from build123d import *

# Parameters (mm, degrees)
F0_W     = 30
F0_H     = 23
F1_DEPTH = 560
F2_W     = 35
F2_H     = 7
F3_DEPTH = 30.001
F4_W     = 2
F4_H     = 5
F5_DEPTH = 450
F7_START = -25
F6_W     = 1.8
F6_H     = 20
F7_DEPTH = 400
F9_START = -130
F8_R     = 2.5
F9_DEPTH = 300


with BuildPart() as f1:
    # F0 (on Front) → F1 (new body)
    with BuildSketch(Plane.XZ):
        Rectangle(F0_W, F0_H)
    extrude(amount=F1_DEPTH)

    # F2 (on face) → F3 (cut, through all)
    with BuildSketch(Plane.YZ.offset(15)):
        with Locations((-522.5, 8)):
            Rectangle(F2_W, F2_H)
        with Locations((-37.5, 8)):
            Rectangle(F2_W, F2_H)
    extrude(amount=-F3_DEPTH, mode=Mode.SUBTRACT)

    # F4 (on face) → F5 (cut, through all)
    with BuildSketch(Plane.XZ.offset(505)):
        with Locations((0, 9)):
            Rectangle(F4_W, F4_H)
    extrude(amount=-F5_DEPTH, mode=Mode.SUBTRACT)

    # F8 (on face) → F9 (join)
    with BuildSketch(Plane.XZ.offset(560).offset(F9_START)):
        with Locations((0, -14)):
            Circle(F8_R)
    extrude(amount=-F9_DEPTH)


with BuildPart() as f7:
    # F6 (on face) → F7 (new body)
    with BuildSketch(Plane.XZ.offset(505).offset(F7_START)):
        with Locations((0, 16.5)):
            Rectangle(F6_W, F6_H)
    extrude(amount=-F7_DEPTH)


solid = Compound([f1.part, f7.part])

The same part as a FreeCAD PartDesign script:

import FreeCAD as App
import Part
import Sketcher
Q = App.Units.Quantity

doc = App.newDocument("Part")
body = doc.addObject("PartDesign::Body", "Body")
body.AllowCompound = True

sketch1 = body.newObject("Sketcher::SketchObject", "Sketch")
sketch1.AttachmentSupport = (doc.getObject("XZ_Plane"), [""])
sketch1.MapMode = "FlatFace"
sketch1.addGeometry(Part.LineSegment(App.Vector(-15, 12, 0), App.Vector(-15, -12, 0)), False)
sketch1.addGeometry(Part.LineSegment(App.Vector(-15, -12, 0), App.Vector(15, -12, 0)), False)
sketch1.addGeometry(Part.LineSegment(App.Vector(15, -12, 0), App.Vector(15, 12, 0)), False)
sketch1.addGeometry(Part.LineSegment(App.Vector(15, 12, 0), App.Vector(-15, 12, 0)), False)
sketch1.addConstraint(Sketcher.Constraint("Coincident", 0, 2, 1, 1))
sketch1.addConstraint(Sketcher.Constraint("Coincident", 1, 2, 2, 1))
sketch1.addConstraint(Sketcher.Constraint("Coincident", 2, 2, 3, 1))
sketch1.addConstraint(Sketcher.Constraint("Coincident", 3, 2, 0, 1))
sketch1.addConstraint(Sketcher.Constraint("Vertical", 0))
sketch1.addConstraint(Sketcher.Constraint("Horizontal", 1))
sketch1.addConstraint(Sketcher.Constraint("Vertical", 2))
sketch1.addConstraint(Sketcher.Constraint("Horizontal", 3))
sketch1.addConstraint(Sketcher.Constraint("Symmetric", 0, 2, 2, 2, -1, 1))
sketch1.addConstraint(Sketcher.Constraint("DistanceX", 1, 1, 1, 2, Q("30 mm")))
sketch1.addConstraint(Sketcher.Constraint("DistanceY", 0, 2, 0, 1, Q("23 mm")))
pad1 = body.newObject("PartDesign::Pad", "Pad")
pad1.Profile = sketch1
pad1.Length = 560

sketch2 = body.newObject("Sketcher::SketchObject", "Sketch001")
sketch2.AttachmentSupport = (doc.getObject("YZ_Plane"), [""])
sketch2.MapMode = "FlatFace"
sketch2.AttachmentOffset = App.Placement(App.Vector(0, 0, 15), App.Rotation())
sketch2.addGeometry(Part.LineSegment(App.Vector(-540, 12, 0), App.Vector(-540, 4, 0)), False)
sketch2.addGeometry(Part.LineSegment(App.Vector(-540, 4, 0), App.Vector(-505, 4, 0)), False)
sketch2.addGeometry(Part.LineSegment(App.Vector(-505, 4, 0), App.Vector(-505, 12, 0)), False)
sketch2.addGeometry(Part.LineSegment(App.Vector(-505, 12, 0), App.Vector(-540, 12, 0)), False)
sketch2.addGeometry(Part.LineSegment(App.Vector(-55, 12, 0), App.Vector(-55, 4, 0)), False)
sketch2.addGeometry(Part.LineSegment(App.Vector(-55, 4, 0), App.Vector(-20, 4, 0)), False)
sketch2.addGeometry(Part.LineSegment(App.Vector(-20, 4, 0), App.Vector(-20, 12, 0)), False)
sketch2.addGeometry(Part.LineSegment(App.Vector(-20, 12, 0), App.Vector(-55, 12, 0)), False)
sketch2.addConstraint(Sketcher.Constraint("Coincident", 0, 2, 1, 1))
sketch2.addConstraint(Sketcher.Constraint("Coincident", 1, 2, 2, 1))
sketch2.addConstraint(Sketcher.Constraint("Coincident", 2, 2, 3, 1))
sketch2.addConstraint(Sketcher.Constraint("Coincident", 3, 2, 0, 1))
sketch2.addConstraint(Sketcher.Constraint("Coincident", 4, 2, 5, 1))
sketch2.addConstraint(Sketcher.Constraint("Coincident", 5, 2, 6, 1))
sketch2.addConstraint(Sketcher.Constraint("Coincident", 6, 2, 7, 1))
sketch2.addConstraint(Sketcher.Constraint("Coincident", 7, 2, 4, 1))
sketch2.addConstraint(Sketcher.Constraint("Vertical", 0))
sketch2.addConstraint(Sketcher.Constraint("Horizontal", 1))
sketch2.addConstraint(Sketcher.Constraint("Vertical", 2))
sketch2.addConstraint(Sketcher.Constraint("Horizontal", 3))
sketch2.addConstraint(Sketcher.Constraint("Vertical", 4))
sketch2.addConstraint(Sketcher.Constraint("Horizontal", 5))
sketch2.addConstraint(Sketcher.Constraint("Vertical", 6))
sketch2.addConstraint(Sketcher.Constraint("Horizontal", 7))
sketch2.addConstraint(Sketcher.Constraint("Horizontal", 1, 2, 4, 2))
sketch2.addConstraint(Sketcher.Constraint("Horizontal", 3, 2, 6, 2))
sketch2.addConstraint(Sketcher.Constraint("Equal", 3, 5))
sketch2.addConstraint(Sketcher.Constraint("DistanceX", 1, 1, 1, 2, Q("35 mm")))
sketch2.addConstraint(Sketcher.Constraint("DistanceY", 0, 2, 0, 1, Q("7 mm")))
sketch2.addConstraint(Sketcher.Constraint("DistanceX", 0, 2, -1, 1, Q("540 mm")))
sketch2.addConstraint(Sketcher.Constraint("DistanceX", 4, 2, -1, 1, Q("55 mm")))
sketch2.addConstraint(Sketcher.Constraint("DistanceY", -1, 1, 0, 2, Q("4.5 mm")))
pocket1 = body.newObject("PartDesign::Pocket", "Pocket")
pocket1.Profile = sketch2
pocket1.Type = "ThroughAll"

sketch3 = body.newObject("Sketcher::SketchObject", "Sketch002")
sketch3.AttachmentSupport = (doc.getObject("XZ_Plane"), [""])
sketch3.MapMode = "FlatFace"
sketch3.AttachmentOffset = App.Placement(App.Vector(0, 0, 505), App.Rotation())
sketch3.addGeometry(Part.LineSegment(App.Vector(-1, 11.5, 0), App.Vector(-1, 6.5, 0)), False)
sketch3.addGeometry(Part.LineSegment(App.Vector(-1, 6.5, 0), App.Vector(1, 6.5, 0)), False)
sketch3.addGeometry(Part.LineSegment(App.Vector(1, 6.5, 0), App.Vector(1, 11.5, 0)), False)
sketch3.addGeometry(Part.LineSegment(App.Vector(1, 11.5, 0), App.Vector(-1, 11.5, 0)), False)
sketch3.addConstraint(Sketcher.Constraint("Coincident", 0, 2, 1, 1))
sketch3.addConstraint(Sketcher.Constraint("Coincident", 1, 2, 2, 1))
sketch3.addConstraint(Sketcher.Constraint("Coincident", 2, 2, 3, 1))
sketch3.addConstraint(Sketcher.Constraint("Coincident", 3, 2, 0, 1))
sketch3.addConstraint(Sketcher.Constraint("Vertical", 0))
sketch3.addConstraint(Sketcher.Constraint("Horizontal", 1))
sketch3.addConstraint(Sketcher.Constraint("Vertical", 2))
sketch3.addConstraint(Sketcher.Constraint("Horizontal", 3))
sketch3.addConstraint(Sketcher.Constraint("DistanceX", 1, 1, 1, 2, Q("2 mm")))
sketch3.addConstraint(Sketcher.Constraint("DistanceY", 0, 2, 0, 1, Q("5 mm")))
sketch3.addConstraint(Sketcher.Constraint("DistanceX", 0, 2, -1, 1, Q("1 mm")))
sketch3.addConstraint(Sketcher.Constraint("DistanceY", -1, 1, 0, 2, Q("6.5 mm")))
pocket2 = body.newObject("PartDesign::Pocket", "Pocket001")
pocket2.Profile = sketch3
pocket2.Length = 450

sketch4 = body.newObject("Sketcher::SketchObject", "Sketch003")
sketch4.AttachmentSupport = (doc.getObject("XZ_Plane"), [""])
sketch4.MapMode = "FlatFace"
sketch4.AttachmentOffset = App.Placement(App.Vector(0, 0, 430), App.Rotation())
sketch4.addGeometry(Part.Circle(App.Vector(0, -14, 0), App.Vector(0, 0, 1), 2.5), False)
sketch4.addConstraint(Sketcher.Constraint("PointOnObject", 0, 3, -2))
sketch4.addConstraint(Sketcher.Constraint("Diameter", 0, Q("5 mm")))
sketch4.addConstraint(Sketcher.Constraint("DistanceY", 0, 3, -1, 1, Q("14 mm")))
pad2 = body.newObject("PartDesign::Pad", "Pad001")
pad2.Profile = sketch4
pad2.Length = 300
pad2.Reversed = True
body2 = doc.addObject("PartDesign::Body", "Body001")

sketch5 = body2.newObject("Sketcher::SketchObject", "Sketch004")
sketch5.AttachmentSupport = (doc.getObject("XZ_Plane001"), [""])
sketch5.MapMode = "FlatFace"
sketch5.AttachmentOffset = App.Placement(App.Vector(0, 0, 480), App.Rotation())
sketch5.addGeometry(Part.LineSegment(App.Vector(-0.9, 26.5, 0), App.Vector(-0.9, 6.5, 0)), False)
sketch5.addGeometry(Part.LineSegment(App.Vector(-0.9, 6.5, 0), App.Vector(0.9, 6.5, 0)), False)
sketch5.addGeometry(Part.LineSegment(App.Vector(0.9, 6.5, 0), App.Vector(0.9, 26.5, 0)), False)
sketch5.addGeometry(Part.LineSegment(App.Vector(0.9, 26.5, 0), App.Vector(-0.9, 26.5, 0)), False)
sketch5.addConstraint(Sketcher.Constraint("Coincident", 0, 2, 1, 1))
sketch5.addConstraint(Sketcher.Constraint("Coincident", 1, 2, 2, 1))
sketch5.addConstraint(Sketcher.Constraint("Coincident", 2, 2, 3, 1))
sketch5.addConstraint(Sketcher.Constraint("Coincident", 3, 2, 0, 1))
sketch5.addConstraint(Sketcher.Constraint("Vertical", 0))
sketch5.addConstraint(Sketcher.Constraint("Horizontal", 1))
sketch5.addConstraint(Sketcher.Constraint("Vertical", 2))
sketch5.addConstraint(Sketcher.Constraint("Horizontal", 3))
sketch5.addConstraint(Sketcher.Constraint("DistanceY", 0, 2, 0, 1, Q("20 mm")))
sketch5.addConstraint(Sketcher.Constraint("DistanceX", 1, 1, 1, 2, Q("1.8 mm")))
sketch5.addConstraint(Sketcher.Constraint("DistanceX", 0, 2, -1, 1, Q("0.9 mm")))
sketch5.addConstraint(Sketcher.Constraint("DistanceY", -1, 1, 0, 2, Q("6.5 mm")))
pad3 = body2.newObject("PartDesign::Pad", "Pad002")
pad3.Profile = sketch5
pad3.Length = 400
pad3.Reversed = True

doc.recompute()
